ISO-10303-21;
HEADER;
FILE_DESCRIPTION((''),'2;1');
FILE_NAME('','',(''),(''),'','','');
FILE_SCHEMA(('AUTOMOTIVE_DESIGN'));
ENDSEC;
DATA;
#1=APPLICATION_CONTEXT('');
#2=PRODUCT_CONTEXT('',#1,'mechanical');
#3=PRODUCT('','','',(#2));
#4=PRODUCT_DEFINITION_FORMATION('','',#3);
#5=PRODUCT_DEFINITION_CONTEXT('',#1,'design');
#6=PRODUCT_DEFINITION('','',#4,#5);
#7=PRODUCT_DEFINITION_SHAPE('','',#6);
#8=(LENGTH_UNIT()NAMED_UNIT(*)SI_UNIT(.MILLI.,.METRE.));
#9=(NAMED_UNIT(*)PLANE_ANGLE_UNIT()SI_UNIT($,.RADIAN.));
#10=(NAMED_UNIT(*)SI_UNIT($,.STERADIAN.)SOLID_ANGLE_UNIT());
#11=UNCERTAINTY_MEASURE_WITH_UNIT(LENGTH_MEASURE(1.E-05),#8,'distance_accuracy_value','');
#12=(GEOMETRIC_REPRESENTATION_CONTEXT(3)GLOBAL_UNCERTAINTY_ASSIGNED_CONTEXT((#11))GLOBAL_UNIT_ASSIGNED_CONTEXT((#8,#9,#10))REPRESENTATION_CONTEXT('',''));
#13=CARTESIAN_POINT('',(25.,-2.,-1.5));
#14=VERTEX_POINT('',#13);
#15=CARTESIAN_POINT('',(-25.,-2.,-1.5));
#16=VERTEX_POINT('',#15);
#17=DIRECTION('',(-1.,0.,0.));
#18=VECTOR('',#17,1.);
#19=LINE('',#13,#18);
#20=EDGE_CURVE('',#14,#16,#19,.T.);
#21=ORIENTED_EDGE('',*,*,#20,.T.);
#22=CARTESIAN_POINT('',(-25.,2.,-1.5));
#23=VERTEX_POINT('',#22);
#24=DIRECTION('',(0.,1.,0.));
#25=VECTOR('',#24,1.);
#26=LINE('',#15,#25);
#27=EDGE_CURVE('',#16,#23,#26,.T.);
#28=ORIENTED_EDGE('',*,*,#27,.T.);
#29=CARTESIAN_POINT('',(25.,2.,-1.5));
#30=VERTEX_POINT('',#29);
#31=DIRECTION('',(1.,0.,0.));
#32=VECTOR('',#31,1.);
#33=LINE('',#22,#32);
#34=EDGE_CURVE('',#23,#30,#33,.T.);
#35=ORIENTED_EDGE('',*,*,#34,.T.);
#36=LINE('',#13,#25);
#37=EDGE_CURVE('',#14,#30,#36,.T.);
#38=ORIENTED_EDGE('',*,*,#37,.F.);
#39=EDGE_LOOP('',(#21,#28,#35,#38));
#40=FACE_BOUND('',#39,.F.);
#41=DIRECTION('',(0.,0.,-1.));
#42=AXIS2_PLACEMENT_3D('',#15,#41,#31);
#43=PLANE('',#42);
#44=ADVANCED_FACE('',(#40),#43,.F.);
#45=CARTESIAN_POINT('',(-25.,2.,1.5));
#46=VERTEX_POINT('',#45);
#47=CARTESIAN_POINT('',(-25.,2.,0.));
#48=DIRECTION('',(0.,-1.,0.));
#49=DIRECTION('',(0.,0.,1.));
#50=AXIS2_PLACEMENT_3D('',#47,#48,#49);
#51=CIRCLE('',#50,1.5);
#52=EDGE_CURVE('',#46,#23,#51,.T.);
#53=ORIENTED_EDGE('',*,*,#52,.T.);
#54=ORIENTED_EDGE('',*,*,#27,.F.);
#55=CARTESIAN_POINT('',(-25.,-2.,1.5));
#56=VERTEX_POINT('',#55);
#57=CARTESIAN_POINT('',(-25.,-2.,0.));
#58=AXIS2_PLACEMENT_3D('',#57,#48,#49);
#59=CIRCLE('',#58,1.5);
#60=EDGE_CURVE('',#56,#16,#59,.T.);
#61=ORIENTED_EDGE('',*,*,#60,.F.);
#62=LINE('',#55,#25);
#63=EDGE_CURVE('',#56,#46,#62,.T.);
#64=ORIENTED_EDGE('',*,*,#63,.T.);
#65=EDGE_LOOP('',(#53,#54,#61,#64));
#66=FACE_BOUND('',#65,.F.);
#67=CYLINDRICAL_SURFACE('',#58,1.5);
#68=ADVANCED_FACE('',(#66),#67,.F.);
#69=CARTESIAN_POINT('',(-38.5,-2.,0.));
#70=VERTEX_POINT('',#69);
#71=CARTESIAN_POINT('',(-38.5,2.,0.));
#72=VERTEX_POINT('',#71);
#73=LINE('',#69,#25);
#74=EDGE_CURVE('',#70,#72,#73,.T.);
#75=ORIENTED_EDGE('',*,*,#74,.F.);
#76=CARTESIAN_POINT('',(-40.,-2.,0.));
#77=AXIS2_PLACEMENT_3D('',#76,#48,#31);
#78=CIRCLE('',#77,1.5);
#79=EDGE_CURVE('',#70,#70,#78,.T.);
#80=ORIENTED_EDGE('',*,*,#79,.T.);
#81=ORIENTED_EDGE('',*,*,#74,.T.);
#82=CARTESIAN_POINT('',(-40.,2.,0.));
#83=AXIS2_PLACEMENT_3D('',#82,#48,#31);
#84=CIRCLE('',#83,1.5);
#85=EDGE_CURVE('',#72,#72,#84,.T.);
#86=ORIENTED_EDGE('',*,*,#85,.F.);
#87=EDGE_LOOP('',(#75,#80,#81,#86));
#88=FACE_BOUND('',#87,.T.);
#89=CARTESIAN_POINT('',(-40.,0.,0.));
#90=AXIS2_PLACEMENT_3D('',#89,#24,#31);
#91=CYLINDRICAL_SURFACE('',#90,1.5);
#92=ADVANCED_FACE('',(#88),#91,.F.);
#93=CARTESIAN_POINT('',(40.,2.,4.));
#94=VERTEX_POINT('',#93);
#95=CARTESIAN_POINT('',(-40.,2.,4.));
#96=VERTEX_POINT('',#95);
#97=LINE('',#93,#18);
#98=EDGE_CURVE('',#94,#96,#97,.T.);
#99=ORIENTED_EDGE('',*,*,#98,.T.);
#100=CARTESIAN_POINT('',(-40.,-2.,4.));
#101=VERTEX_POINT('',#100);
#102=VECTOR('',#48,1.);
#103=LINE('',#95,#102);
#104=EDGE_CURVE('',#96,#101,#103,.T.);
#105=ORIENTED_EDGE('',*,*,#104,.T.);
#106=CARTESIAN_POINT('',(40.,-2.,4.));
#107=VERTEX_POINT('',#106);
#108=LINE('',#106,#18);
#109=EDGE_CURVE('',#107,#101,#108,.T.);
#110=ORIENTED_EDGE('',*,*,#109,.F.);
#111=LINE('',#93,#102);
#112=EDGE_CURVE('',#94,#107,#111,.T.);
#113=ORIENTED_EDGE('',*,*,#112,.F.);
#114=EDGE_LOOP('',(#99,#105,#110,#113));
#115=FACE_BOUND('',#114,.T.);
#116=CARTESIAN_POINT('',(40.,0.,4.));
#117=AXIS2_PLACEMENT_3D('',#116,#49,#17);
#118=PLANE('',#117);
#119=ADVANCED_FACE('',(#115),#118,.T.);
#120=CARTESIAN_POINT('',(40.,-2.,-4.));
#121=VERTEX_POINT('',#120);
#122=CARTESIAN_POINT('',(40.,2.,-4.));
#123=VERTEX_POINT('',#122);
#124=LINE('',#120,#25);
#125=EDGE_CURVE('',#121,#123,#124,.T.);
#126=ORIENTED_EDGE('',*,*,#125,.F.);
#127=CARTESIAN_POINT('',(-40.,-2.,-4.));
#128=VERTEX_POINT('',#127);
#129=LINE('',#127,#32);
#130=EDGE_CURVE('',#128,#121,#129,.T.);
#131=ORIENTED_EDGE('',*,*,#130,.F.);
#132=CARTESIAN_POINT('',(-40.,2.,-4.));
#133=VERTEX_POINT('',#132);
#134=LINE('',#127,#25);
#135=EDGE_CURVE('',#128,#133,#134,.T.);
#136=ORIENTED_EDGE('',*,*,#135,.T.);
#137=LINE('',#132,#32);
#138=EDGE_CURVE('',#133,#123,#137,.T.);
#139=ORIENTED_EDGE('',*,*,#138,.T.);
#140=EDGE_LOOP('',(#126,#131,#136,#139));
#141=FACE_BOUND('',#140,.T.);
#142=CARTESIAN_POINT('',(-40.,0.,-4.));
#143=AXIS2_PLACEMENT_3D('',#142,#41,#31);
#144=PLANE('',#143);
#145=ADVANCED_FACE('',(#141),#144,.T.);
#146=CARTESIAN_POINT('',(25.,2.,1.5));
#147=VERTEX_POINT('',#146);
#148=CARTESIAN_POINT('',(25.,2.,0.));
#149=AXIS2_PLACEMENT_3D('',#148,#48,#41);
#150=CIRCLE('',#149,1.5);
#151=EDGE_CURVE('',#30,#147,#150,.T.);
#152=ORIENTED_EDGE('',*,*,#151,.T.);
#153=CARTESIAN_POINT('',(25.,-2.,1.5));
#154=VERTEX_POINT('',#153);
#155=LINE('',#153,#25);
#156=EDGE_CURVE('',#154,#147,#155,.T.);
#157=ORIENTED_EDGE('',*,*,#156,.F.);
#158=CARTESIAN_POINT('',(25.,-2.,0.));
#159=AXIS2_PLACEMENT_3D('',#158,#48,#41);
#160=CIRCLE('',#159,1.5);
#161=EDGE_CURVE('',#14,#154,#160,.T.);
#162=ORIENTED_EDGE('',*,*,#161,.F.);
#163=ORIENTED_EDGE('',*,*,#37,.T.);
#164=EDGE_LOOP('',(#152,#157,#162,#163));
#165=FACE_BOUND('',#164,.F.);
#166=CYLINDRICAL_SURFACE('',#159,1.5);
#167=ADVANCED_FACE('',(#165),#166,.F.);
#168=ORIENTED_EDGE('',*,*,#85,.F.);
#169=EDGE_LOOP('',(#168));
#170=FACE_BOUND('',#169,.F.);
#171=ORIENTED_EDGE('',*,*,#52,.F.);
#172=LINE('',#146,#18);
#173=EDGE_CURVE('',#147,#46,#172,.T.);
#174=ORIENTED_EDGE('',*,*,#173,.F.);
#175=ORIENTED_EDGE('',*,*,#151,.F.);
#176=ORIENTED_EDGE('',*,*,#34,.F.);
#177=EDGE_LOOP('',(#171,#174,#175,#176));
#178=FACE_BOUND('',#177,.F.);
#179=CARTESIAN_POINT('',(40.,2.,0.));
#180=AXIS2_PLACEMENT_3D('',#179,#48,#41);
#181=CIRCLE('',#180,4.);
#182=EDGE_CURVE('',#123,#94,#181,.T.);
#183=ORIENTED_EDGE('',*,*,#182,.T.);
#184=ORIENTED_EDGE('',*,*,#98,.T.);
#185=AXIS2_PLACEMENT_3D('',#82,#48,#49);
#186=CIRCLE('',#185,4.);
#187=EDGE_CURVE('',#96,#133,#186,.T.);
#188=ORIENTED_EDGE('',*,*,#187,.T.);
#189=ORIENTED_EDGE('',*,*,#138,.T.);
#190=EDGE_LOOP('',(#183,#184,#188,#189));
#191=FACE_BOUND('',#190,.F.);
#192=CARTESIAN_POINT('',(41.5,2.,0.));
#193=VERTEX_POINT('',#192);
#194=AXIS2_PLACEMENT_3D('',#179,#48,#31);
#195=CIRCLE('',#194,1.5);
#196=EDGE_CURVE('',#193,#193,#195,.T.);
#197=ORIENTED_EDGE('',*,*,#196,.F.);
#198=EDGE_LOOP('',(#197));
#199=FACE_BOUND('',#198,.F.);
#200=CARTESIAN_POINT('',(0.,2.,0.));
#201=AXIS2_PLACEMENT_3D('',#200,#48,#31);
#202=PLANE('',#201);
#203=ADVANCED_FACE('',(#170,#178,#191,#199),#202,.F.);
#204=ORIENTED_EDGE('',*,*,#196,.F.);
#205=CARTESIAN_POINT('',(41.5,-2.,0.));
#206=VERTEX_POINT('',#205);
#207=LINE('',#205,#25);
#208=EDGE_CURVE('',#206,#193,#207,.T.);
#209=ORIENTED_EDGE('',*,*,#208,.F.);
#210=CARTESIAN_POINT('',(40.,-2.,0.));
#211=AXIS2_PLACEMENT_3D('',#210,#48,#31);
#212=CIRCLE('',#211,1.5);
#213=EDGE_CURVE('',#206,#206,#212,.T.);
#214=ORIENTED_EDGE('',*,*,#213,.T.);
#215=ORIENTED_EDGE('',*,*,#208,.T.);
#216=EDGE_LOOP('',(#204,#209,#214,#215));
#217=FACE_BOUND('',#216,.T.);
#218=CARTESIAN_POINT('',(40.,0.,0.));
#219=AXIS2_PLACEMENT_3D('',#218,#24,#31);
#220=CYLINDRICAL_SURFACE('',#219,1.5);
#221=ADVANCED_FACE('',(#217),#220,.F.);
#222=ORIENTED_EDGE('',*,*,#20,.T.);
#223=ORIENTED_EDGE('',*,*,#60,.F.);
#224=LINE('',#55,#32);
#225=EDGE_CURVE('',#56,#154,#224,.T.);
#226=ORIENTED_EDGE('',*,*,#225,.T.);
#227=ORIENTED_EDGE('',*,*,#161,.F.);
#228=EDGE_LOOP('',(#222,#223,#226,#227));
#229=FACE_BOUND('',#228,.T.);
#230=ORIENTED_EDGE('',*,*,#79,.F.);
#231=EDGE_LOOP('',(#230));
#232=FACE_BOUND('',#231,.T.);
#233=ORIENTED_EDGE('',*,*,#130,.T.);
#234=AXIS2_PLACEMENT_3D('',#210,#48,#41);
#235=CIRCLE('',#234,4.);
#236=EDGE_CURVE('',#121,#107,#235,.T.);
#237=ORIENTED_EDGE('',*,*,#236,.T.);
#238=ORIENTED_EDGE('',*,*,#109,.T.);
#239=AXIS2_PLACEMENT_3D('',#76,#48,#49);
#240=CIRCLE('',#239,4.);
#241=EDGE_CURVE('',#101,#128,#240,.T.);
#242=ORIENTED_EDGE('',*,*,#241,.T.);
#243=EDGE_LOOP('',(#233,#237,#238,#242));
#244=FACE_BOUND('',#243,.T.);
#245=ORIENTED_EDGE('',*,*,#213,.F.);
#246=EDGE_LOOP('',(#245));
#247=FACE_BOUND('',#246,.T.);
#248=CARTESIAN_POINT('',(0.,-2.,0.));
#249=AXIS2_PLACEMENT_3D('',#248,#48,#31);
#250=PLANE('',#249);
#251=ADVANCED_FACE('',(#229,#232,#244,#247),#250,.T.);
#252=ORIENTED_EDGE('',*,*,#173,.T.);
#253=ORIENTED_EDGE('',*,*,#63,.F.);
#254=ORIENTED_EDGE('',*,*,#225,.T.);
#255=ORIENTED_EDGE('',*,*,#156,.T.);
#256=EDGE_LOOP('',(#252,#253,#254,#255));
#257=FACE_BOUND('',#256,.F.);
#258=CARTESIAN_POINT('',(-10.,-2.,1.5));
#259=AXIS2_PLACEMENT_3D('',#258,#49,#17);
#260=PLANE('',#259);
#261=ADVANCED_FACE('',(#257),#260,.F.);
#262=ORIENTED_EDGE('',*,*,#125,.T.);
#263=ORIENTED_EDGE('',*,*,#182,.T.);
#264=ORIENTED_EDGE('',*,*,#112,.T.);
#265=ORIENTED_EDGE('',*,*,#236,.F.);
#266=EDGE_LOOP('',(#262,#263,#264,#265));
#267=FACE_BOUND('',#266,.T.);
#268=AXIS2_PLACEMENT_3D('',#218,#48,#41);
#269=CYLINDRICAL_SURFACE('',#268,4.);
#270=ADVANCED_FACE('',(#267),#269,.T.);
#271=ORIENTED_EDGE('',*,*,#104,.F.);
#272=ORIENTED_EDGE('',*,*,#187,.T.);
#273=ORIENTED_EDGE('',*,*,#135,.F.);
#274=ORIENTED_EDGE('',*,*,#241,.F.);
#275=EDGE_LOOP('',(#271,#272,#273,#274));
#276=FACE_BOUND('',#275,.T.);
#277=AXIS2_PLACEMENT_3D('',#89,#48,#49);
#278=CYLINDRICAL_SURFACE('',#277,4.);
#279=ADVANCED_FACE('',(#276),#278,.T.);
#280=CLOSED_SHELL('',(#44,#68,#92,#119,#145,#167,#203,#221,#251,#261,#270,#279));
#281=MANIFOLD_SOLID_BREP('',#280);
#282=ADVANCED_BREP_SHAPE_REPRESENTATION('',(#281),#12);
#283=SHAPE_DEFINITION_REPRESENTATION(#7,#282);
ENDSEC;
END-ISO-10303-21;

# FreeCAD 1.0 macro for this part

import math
import FreeCAD as App
import Part
import Sketcher

V = App.Vector

doc = App.newDocument("Part")
params = doc.addObject("Spreadsheet::Sheet", "Params")
for row, (alias, value) in enumerate([
    ("sketch1_diameter", "3 mm"),
    ("sketch1_radius", "4 mm"),
    ("sketch1_width", "80 mm"),
    ("pad1_length", "4 mm"),
    ("sketch2_radius", "1.5 mm"),
    ("sketch2_width", "15 mm"),
    ("sketch2_width2", "35 mm"),
    ("pocket1_length", "25 mm"),
], start=1):
    params.set(f"A{row}", alias)
    params.set(f"B{row}", "=" + value)
    params.setAlias(f"B{row}", alias)

body = doc.addObject("PartDesign::Body", "Body")

# Sketch on XZ plane
sketch1 = doc.addObject("Sketcher::SketchObject", "Sketch")
body.addObject(sketch1)
sketch1.AttachmentSupport = (doc.XZ_Plane, [""])
sketch1.MapMode = "FlatFace"
sketch1.addGeometry([
    Part.ArcOfCircle(Part.Circle(V(40, 0, 0), V(0, 0, 1), 4), math.radians(-90), math.radians(90)),  # 0
    Part.LineSegment(V(40, 4, 0), V(-40, 4, 0)),  # 1
    Part.ArcOfCircle(Part.Circle(V(-40, 0, 0), V(0, 0, 1), 4), math.radians(90), math.radians(270)),  # 2
    Part.LineSegment(V(-40, -4, 0), V(40, -4, 0)),  # 3
    Part.Circle(V(-40, 0, 0), V(0, 0, 1), 1.5),  # 4
    Part.Circle(V(-10, 0, 0), V(0, 0, 1), 1.5),  # 5
    Part.Circle(V(40, 0, 0), V(0, 0, 1), 1.5),  # 6
], False)
sketch1.addConstraint([
    Sketcher.Constraint("Tangent", 0, 2, 1, 1),
    Sketcher.Constraint("Tangent", 1, 2, 2, 1),
    Sketcher.Constraint("Tangent", 2, 2, 3, 1),
    Sketcher.Constraint("Tangent", 3, 2, 0, 1),
    Sketcher.Constraint("Horizontal", 1),
    Sketcher.Constraint("Horizontal", 3),
    Sketcher.Constraint("Coincident", 4, 3, 2, 3),
    Sketcher.Constraint("Coincident", 6, 3, 0, 3),
    Sketcher.Constraint("Equal", 4, 5),
    Sketcher.Constraint("Equal", 5, 6),
    Sketcher.Constraint("Symmetric", 0, 3, 2, 3, -1, 1),
    Sketcher.Constraint("PointOnObject", 5, 3, -1),
    Sketcher.Constraint("Diameter", 4, 3.0),
    Sketcher.Constraint("Radius", 0, 4.0),
    Sketcher.Constraint("DistanceX", 1, 2, 1, 1, 80.0),
    Sketcher.Constraint("DistanceX", 5, 3, -1, 1, 10.0),
])
sketch1.setExpression("Constraints[12]", "Params.sketch1_diameter")
sketch1.setExpression("Constraints[13]", "Params.sketch1_radius")
sketch1.setExpression("Constraints[14]", "Params.sketch1_width")
pad1 = doc.addObject("PartDesign::Pad", "Pad")
body.addObject(pad1)
pad1.Profile = sketch1
pad1.setExpression("Length", "Params.pad1_length")
pad1.Midplane = True

# Sketch on XZ plane
sketch2 = doc.addObject("Sketcher::SketchObject", "Sketch001")
body.addObject(sketch2)
sketch2.AttachmentSupport = (doc.XZ_Plane, [""])
sketch2.MapMode = "FlatFace"
sketch2.AttachmentOffset = App.Placement(V(0, 0, 2), App.Rotation())
sketch2.addGeometry([
    Part.LineSegment(V(-10, 1.5, 0), V(-25, 1.5, 0)),  # 0
    Part.ArcOfCircle(Part.Circle(V(-25, 0, 0), V(0, 0, 1), 1.5), math.radians(90), math.radians(270)),  # 1
    Part.LineSegment(V(-25, -1.5, 0), V(-10, -1.5, 0)),  # 2
    Part.ArcOfCircle(Part.Circle(V(-10, 0, 0), V(0, 0, 1), 1.5), math.radians(90), math.radians(270)),  # 3
    Part.LineSegment(V(25, 1.5, 0), V(-10, 1.5, 0)),  # 4
    Part.ArcOfCircle(Part.Circle(V(-10, 0, 0), V(0, 0, 1), 1.5), math.radians(0), math.radians(90)),  # 5
    Part.ArcOfCircle(Part.Circle(V(-10, 0, 0), V(0, 0, 1), 1.5), math.radians(-90), math.radians(0)),  # 6
    Part.LineSegment(V(-10, -1.5, 0), V(25, -1.5, 0)),  # 7
    Part.ArcOfCircle(Part.Circle(V(25, 0, 0), V(0, 0, 1), 1.5), math.radians(-90), math.radians(90)),  # 8
], False)
sketch2.addConstraint([
    Sketcher.Constraint("Tangent", 0, 2, 1, 1),
    Sketcher.Constraint("Tangent", 1, 2, 2, 1),
    Sketcher.Constraint("Tangent", 2, 2, 3, 2),
    Sketcher.Constraint("Tangent", 3, 1, 0, 1),
    Sketcher.Constraint("Tangent", 4, 2, 5, 2),
    Sketcher.Constraint("Tangent", 5, 1, 6, 2),
    Sketcher.Constraint("Tangent", 6, 1, 7, 1),
    Sketcher.Constraint("Tangent", 7, 2, 8, 1),
    Sketcher.Constraint("Tangent", 8, 2, 4, 1),
    Sketcher.Constraint("Horizontal", 0),
    Sketcher.Constraint("Horizontal", 2),
    Sketcher.Constraint("Horizontal", 4),
    Sketcher.Constraint("Horizontal", 7),
    Sketcher.Constraint("Coincident", 5, 3, 3, 3),
    Sketcher.Constraint("Coincident", 6, 1, 2, 2),
    Sketcher.Constraint("Symmetric", 1, 3, 8, 3, -1, 1),
    Sketcher.Constraint("PointOnObject", 5, 1, -1),
    Sketcher.Constraint("Radius", 1, 1.5),
    Sketcher.Constraint("DistanceX", 0, 2, 0, 1, 15.0),
    Sketcher.Constraint("DistanceX", 4, 2, 4, 1, 35.0),
])
sketch2.setExpression("Constraints[17]", "Params.sketch2_radius")
sketch2.setExpression("Constraints[18]", "Params.sketch2_width")
sketch2.setExpression("Constraints[19]", "Params.sketch2_width2")
pocket1 = doc.addObject("PartDesign::Pocket", "Pocket")
body.addObject(pocket1)
pocket1.Profile = sketch2
pocket1.setExpression("Length", "Params.pocket1_length")

doc.recompute()
